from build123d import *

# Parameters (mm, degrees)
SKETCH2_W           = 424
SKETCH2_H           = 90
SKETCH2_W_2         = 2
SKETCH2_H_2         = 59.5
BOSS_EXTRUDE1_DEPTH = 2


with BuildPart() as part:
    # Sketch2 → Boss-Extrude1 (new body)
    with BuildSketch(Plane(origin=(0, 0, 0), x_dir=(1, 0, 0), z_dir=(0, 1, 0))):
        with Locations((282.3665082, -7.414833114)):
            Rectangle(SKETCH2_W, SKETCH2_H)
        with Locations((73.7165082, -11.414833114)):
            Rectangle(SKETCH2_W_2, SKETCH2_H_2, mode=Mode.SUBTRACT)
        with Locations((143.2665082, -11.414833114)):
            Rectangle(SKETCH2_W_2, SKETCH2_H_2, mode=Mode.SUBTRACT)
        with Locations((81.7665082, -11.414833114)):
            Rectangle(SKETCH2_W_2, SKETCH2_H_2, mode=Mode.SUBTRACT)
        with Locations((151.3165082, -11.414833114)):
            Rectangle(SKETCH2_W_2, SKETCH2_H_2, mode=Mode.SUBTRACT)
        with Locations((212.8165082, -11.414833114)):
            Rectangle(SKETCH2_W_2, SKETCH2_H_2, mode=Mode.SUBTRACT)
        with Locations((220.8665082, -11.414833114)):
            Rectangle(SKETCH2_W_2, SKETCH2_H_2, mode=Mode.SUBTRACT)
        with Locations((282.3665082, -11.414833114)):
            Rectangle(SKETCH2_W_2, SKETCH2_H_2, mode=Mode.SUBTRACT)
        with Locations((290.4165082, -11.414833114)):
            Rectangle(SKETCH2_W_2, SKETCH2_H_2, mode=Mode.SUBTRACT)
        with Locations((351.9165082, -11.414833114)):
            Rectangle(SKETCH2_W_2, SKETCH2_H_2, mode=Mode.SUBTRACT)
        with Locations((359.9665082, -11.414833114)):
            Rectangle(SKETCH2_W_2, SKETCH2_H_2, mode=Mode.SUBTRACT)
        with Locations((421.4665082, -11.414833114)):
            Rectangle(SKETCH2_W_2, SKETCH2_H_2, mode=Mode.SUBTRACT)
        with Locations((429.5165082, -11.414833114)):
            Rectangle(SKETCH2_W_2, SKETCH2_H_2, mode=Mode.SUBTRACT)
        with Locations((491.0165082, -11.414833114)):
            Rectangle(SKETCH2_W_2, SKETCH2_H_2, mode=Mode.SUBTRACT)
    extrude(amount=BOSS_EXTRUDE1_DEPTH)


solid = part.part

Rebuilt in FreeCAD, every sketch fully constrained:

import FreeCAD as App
import Part
import Sketcher
from FreeCAD import Vector


def add_polygon(sketch, points):
    """Adds a closed chain of lines whose ends are joined by coincident constraints."""
    first, n = sketch.GeometryCount, len(points)
    for a, b in zip(points, points[1:] + points[:1]):
        sketch.addGeometry(Part.LineSegment(App.Vector(*a, 0), App.Vector(*b, 0)), False)
    for i in range(n):
        sketch.addConstraint(Sketcher.Constraint("Coincident", first + i, 2, first + (i + 1) % n, 1))

doc = App.newDocument("Part")
body = doc.addObject("PartDesign::Body", "Body")

# Sketch on XZ plane
sketch1 = body.newObject("Sketcher::SketchObject", "Sketch")
sketch1.AttachmentSupport = (doc.getObject("XZ_Plane"), [""])
sketch1.MapMode = "FlatFace"
add_polygon(sketch1, [(70.366508, -37.585167), (70.366508, 52.414833), (494.366508, 52.414833), (494.366508, -37.585167)])  # lines 0-3
add_polygon(sketch1, [(74.716508, 41.164833), (72.716508, 41.164833), (72.716508, -18.335167), (74.716508, -18.335167)])  # lines 4-7
add_polygon(sketch1, [(82.766508, 41.164833), (80.766508, 41.164833), (80.766508, -18.335167), (82.766508, -18.335167)])  # lines 8-11
add_polygon(sketch1, [(144.266508, 41.164833), (142.266508, 41.164833), (142.266508, -18.335167), (144.266508, -18.335167)])  # lines 12-15
add_polygon(sketch1, [(152.316508, 41.164833), (150.316508, 41.164833), (150.316508, -18.335167), (152.316508, -18.335167)])  # lines 16-19
add_polygon(sketch1, [(213.816508, 41.164833), (211.816508, 41.164833), (211.816508, -18.335167), (213.816508, -18.335167)])  # lines 20-23
add_polygon(sketch1, [(221.866508, 41.164833), (219.866508, 41.164833), (219.866508, -18.335167), (221.866508, -18.335167)])  # lines 24-27
add_polygon(sketch1, [(283.366508, 41.164833), (281.366508, 41.164833), (281.366508, -18.335167), (283.366508, -18.335167)])  # lines 28-31
add_polygon(sketch1, [(291.416508, 41.164833), (289.416508, 41.164833), (289.416508, -18.335167), (291.416508, -18.335167)])  # lines 32-35
add_polygon(sketch1, [(352.916508, 41.164833), (350.916508, 41.164833), (350.916508, -18.335167), (352.916508, -18.335167)])  # lines 36-39
add_polygon(sketch1, [(360.966508, 41.164833), (358.966508, 41.164833), (358.966508, -18.335167), (360.966508, -18.335167)])  # lines 40-43
add_polygon(sketch1, [(422.466508, 41.164833), (420.466508, 41.164833), (420.466508, -18.335167), (422.466508, -18.335167)])  # lines 44-47
add_polygon(sketch1, [(430.516508, 41.164833), (428.516508, 41.164833), (428.516508, -18.335167), (430.516508, -18.335167)])  # lines 48-51
add_polygon(sketch1, [(492.016508, 41.164833), (490.016508, 41.164833), (490.016508, -18.335167), (492.016508, -18.335167)])  # lines 52-55
sketch1.addConstraint(Sketcher.Constraint("Vertical", 0))
sketch1.addConstraint(Sketcher.Constraint("Horizontal", 1))
sketch1.addConstraint(Sketcher.Constraint("Vertical", 2))
sketch1.addConstraint(Sketcher.Constraint("Horizontal", 3))
sketch1.addConstraint(Sketcher.Constraint("Horizontal", 4))
sketch1.addConstraint(Sketcher.Constraint("Vertical", 5))
sketch1.addConstraint(Sketcher.Constraint("Horizontal", 6))
sketch1.addConstraint(Sketcher.Constraint("Vertical", 7))
sketch1.addConstraint(Sketcher.Constraint("Horizontal", 8))
sketch1.addConstraint(Sketcher.Constraint("Vertical", 9))
sketch1.addConstraint(Sketcher.Constraint("Horizontal", 10))
sketch1.addConstraint(Sketcher.Constraint("Vertical", 11))
sketch1.addConstraint(Sketcher.Constraint("Horizontal", 12))
sketch1.addConstraint(Sketcher.Constraint("Vertical", 13))
sketch1.addConstraint(Sketcher.Constraint("Horizontal", 14))
sketch1.addConstraint(Sketcher.Constraint("Vertical", 15))
sketch1.addConstraint(Sketcher.Constraint("Horizontal", 16))
sketch1.addConstraint(Sketcher.Constraint("Vertical", 17))
sketch1.addConstraint(Sketcher.Constraint("Horizontal", 18))
sketch1.addConstraint(Sketcher.Constraint("Vertical", 19))
sketch1.addConstraint(Sketcher.Constraint("Horizontal", 20))
sketch1.addConstraint(Sketcher.Constraint("Vertical", 21))
sketch1.addConstraint(Sketcher.Constraint("Horizontal", 22))
sketch1.addConstraint(Sketcher.Constraint("Vertical", 23))
sketch1.addConstraint(Sketcher.Constraint("Horizontal", 24))
sketch1.addConstraint(Sketcher.Constraint("Vertical", 25))
sketch1.addConstraint(Sketcher.Constraint("Horizontal", 26))
sketch1.addConstraint(Sketcher.Constraint("Vertical", 27))
sketch1.addConstraint(Sketcher.Constraint("Horizontal", 28))
sketch1.addConstraint(Sketcher.Constraint("Vertical", 29))
sketch1.addConstraint(Sketcher.Constraint("Horizontal", 30))
sketch1.addConstraint(Sketcher.Constraint("Vertical", 31))
sketch1.addConstraint(Sketcher.Constraint("Horizontal", 32))
sketch1.addConstraint(Sketcher.Constraint("Vertical", 33))
sketch1.addConstraint(Sketcher.Constraint("Horizontal", 34))
sketch1.addConstraint(Sketcher.Constraint("Vertical", 35))
sketch1.addConstraint(Sketcher.Constraint("Horizontal", 36))
sketch1.addConstraint(Sketcher.Constraint("Vertical", 37))
sketch1.addConstraint(Sketcher.Constraint("Horizontal", 38))
sketch1.addConstraint(Sketcher.Constraint("Vertical", 39))
sketch1.addConstraint(Sketcher.Constraint("Horizontal", 40))
sketch1.addConstraint(Sketcher.Constraint("Vertical", 41))
sketch1.addConstraint(Sketcher.Constraint("Horizontal", 42))
sketch1.addConstraint(Sketcher.Constraint("Vertical", 43))
sketch1.addConstraint(Sketcher.Constraint("Horizontal", 44))
sketch1.addConstraint(Sketcher.Constraint("Vertical", 45))
sketch1.addConstraint(Sketcher.Constraint("Horizontal", 46))
sketch1.addConstraint(Sketcher.Constraint("Vertical", 47))
sketch1.addConstraint(Sketcher.Constraint("Horizontal", 48))
sketch1.addConstraint(Sketcher.Constraint("Vertical", 49))
sketch1.addConstraint(Sketcher.Constraint("Horizontal", 50))
sketch1.addConstraint(Sketcher.Constraint("Vertical", 51))
sketch1.addConstraint(Sketcher.Constraint("Horizontal", 52))
sketch1.addConstraint(Sketcher.Constraint("Vertical", 53))
sketch1.addConstraint(Sketcher.Constraint("Horizontal", 54))
sketch1.addConstraint(Sketcher.Constraint("Vertical", 55))
sketch1.addConstraint(Sketcher.Constraint("Horizontal", 7, 2, 8, 2))
sketch1.addConstraint(Sketcher.Constraint("Horizontal", 6, 2, 9, 2))
sketch1.addConstraint(Sketcher.Constraint("Horizontal", 11, 2, 12, 2))
sketch1.addConstraint(Sketcher.Constraint("Horizontal", 10, 2, 13, 2))
sketch1.addConstraint(Sketcher.Constraint("Horizontal", 15, 2, 16, 2))
sketch1.addConstraint(Sketcher.Constraint("Horizontal", 14, 2, 17, 2))
sketch1.addConstraint(Sketcher.Constraint("Horizontal", 19, 2, 20, 2))
sketch1.addConstraint(Sketcher.Constraint("Horizontal", 18, 2, 21, 2))
sketch1.addConstraint(Sketcher.Constraint("Horizontal", 23, 2, 24, 2))
sketch1.addConstraint(Sketcher.Constraint("Horizontal", 22, 2, 25, 2))
sketch1.addConstraint(Sketcher.Constraint("Horizontal", 27, 2, 28, 2))
sketch1.addConstraint(Sketcher.Constraint("Horizontal", 26, 2, 29, 2))
sketch1.addConstraint(Sketcher.Constraint("Horizontal", 31, 2, 32, 2))
sketch1.addConstraint(Sketcher.Constraint("Horizontal", 30, 2, 33, 2))
sketch1.addConstraint(Sketcher.Constraint("Horizontal", 35, 2, 36, 2))
sketch1.addConstraint(Sketcher.Constraint("Horizontal", 34, 2, 37, 2))
sketch1.addConstraint(Sketcher.Constraint("Horizontal", 39, 2, 40, 2))
sketch1.addConstraint(Sketcher.Constraint("Horizontal", 38, 2, 41, 2))
sketch1.addConstraint(Sketcher.Constraint("Horizontal", 43, 2, 44, 2))
sketch1.addConstraint(Sketcher.Constraint("Horizontal", 42, 2, 45, 2))
sketch1.addConstraint(Sketcher.Constraint("Horizontal", 47, 2, 48, 2))
sketch1.addConstraint(Sketcher.Constraint("Horizontal", 46, 2, 49, 2))
sketch1.addConstraint(Sketcher.Constraint("Horizontal", 51, 2, 52, 2))
sketch1.addConstraint(Sketcher.Constraint("Horizontal", 50, 2, 53, 2))
sketch1.addConstraint(Sketcher.Constraint("Equal", 6, 8))
sketch1.addConstraint(Sketcher.Constraint("Equal", 10, 12))
sketch1.addConstraint(Sketcher.Constraint("Equal", 14, 16))
sketch1.addConstraint(Sketcher.Constraint("Equal", 18, 20))
sketch1.addConstraint(Sketcher.Constraint("Equal", 22, 24))
sketch1.addConstraint(Sketcher.Constraint("Equal", 26, 28))
sketch1.addConstraint(Sketcher.Constraint("Equal", 30, 32))
sketch1.addConstraint(Sketcher.Constraint("Equal", 34, 36))
sketch1.addConstraint(Sketcher.Constraint("Equal", 38, 40))
sketch1.addConstraint(Sketcher.Constraint("Equal", 42, 44))
sketch1.addConstraint(Sketcher.Constraint("Equal", 46, 48))
sketch1.addConstraint(Sketcher.Constraint("Equal", 50, 52))
sketch1.addConstraint(Sketcher.Constraint("DistanceX", 1, 1, 1, 2, 424.0))
sketch1.addConstraint(Sketcher.Constraint("DistanceX", 4, 2, 4, 1, 2.0))
sketch1.addConstraint(Sketcher.Constraint("DistanceY", 0, 1, 0, 2, 90.0))
sketch1.addConstraint(Sketcher.Constraint("DistanceY", 5, 2, 5, 1, 59.5))
sketch1.addConstraint(Sketcher.Constraint("DistanceX", 0, 2, 8, 2, 10.4))
sketch1.addConstraint(Sketcher.Constraint("DistanceX", 11, 2, 12, 2, 59.5))
sketch1.addConstraint(Sketcher.Constraint("DistanceX", 19, 2, 20, 2, 59.5))
sketch1.addConstraint(Sketcher.Constraint("DistanceX", 27, 2, 28, 2, 59.5))
sketch1.addConstraint(Sketcher.Constraint("DistanceX", 35, 2, 36, 2, 59.5))
sketch1.addConstraint(Sketcher.Constraint("DistanceX", 43, 2, 44, 2, 59.5))
sketch1.addConstraint(Sketcher.Constraint("DistanceX", 44, 2, 1, 2, 73.9))
sketch1.addConstraint(Sketcher.Constraint("DistanceX", 51, 2, 52, 2, 59.5))
sketch1.addConstraint(Sketcher.Constraint("DistanceX", 0, 2, 4, 2, 2.35))
sketch1.addConstraint(Sketcher.Constraint("DistanceY", 4, 2, 0, 2, 11.25))
sketch1.addConstraint(Sketcher.Constraint("DistanceX", 15, 2, 16, 2, 6.05))
sketch1.addConstraint(Sketcher.Constraint("DistanceX", 23, 2, 24, 2, 6.05))
sketch1.addConstraint(Sketcher.Constraint("DistanceX", 31, 2, 32, 2, 6.05))
sketch1.addConstraint(Sketcher.Constraint("DistanceX", 47, 2, 48, 2, 6.05))
sketch1.addConstraint(Sketcher.Constraint("DistanceX", -1, 1, 0, 2, 70.366508))
sketch1.addConstraint(Sketcher.Constraint("DistanceY", -1, 1, 0, 2, 52.414833))
pad1 = body.newObject("PartDesign::Pad", "Pad")
pad1.Profile = sketch1
pad1.Length = 2
pad1.Reversed = True

doc.recompute()
